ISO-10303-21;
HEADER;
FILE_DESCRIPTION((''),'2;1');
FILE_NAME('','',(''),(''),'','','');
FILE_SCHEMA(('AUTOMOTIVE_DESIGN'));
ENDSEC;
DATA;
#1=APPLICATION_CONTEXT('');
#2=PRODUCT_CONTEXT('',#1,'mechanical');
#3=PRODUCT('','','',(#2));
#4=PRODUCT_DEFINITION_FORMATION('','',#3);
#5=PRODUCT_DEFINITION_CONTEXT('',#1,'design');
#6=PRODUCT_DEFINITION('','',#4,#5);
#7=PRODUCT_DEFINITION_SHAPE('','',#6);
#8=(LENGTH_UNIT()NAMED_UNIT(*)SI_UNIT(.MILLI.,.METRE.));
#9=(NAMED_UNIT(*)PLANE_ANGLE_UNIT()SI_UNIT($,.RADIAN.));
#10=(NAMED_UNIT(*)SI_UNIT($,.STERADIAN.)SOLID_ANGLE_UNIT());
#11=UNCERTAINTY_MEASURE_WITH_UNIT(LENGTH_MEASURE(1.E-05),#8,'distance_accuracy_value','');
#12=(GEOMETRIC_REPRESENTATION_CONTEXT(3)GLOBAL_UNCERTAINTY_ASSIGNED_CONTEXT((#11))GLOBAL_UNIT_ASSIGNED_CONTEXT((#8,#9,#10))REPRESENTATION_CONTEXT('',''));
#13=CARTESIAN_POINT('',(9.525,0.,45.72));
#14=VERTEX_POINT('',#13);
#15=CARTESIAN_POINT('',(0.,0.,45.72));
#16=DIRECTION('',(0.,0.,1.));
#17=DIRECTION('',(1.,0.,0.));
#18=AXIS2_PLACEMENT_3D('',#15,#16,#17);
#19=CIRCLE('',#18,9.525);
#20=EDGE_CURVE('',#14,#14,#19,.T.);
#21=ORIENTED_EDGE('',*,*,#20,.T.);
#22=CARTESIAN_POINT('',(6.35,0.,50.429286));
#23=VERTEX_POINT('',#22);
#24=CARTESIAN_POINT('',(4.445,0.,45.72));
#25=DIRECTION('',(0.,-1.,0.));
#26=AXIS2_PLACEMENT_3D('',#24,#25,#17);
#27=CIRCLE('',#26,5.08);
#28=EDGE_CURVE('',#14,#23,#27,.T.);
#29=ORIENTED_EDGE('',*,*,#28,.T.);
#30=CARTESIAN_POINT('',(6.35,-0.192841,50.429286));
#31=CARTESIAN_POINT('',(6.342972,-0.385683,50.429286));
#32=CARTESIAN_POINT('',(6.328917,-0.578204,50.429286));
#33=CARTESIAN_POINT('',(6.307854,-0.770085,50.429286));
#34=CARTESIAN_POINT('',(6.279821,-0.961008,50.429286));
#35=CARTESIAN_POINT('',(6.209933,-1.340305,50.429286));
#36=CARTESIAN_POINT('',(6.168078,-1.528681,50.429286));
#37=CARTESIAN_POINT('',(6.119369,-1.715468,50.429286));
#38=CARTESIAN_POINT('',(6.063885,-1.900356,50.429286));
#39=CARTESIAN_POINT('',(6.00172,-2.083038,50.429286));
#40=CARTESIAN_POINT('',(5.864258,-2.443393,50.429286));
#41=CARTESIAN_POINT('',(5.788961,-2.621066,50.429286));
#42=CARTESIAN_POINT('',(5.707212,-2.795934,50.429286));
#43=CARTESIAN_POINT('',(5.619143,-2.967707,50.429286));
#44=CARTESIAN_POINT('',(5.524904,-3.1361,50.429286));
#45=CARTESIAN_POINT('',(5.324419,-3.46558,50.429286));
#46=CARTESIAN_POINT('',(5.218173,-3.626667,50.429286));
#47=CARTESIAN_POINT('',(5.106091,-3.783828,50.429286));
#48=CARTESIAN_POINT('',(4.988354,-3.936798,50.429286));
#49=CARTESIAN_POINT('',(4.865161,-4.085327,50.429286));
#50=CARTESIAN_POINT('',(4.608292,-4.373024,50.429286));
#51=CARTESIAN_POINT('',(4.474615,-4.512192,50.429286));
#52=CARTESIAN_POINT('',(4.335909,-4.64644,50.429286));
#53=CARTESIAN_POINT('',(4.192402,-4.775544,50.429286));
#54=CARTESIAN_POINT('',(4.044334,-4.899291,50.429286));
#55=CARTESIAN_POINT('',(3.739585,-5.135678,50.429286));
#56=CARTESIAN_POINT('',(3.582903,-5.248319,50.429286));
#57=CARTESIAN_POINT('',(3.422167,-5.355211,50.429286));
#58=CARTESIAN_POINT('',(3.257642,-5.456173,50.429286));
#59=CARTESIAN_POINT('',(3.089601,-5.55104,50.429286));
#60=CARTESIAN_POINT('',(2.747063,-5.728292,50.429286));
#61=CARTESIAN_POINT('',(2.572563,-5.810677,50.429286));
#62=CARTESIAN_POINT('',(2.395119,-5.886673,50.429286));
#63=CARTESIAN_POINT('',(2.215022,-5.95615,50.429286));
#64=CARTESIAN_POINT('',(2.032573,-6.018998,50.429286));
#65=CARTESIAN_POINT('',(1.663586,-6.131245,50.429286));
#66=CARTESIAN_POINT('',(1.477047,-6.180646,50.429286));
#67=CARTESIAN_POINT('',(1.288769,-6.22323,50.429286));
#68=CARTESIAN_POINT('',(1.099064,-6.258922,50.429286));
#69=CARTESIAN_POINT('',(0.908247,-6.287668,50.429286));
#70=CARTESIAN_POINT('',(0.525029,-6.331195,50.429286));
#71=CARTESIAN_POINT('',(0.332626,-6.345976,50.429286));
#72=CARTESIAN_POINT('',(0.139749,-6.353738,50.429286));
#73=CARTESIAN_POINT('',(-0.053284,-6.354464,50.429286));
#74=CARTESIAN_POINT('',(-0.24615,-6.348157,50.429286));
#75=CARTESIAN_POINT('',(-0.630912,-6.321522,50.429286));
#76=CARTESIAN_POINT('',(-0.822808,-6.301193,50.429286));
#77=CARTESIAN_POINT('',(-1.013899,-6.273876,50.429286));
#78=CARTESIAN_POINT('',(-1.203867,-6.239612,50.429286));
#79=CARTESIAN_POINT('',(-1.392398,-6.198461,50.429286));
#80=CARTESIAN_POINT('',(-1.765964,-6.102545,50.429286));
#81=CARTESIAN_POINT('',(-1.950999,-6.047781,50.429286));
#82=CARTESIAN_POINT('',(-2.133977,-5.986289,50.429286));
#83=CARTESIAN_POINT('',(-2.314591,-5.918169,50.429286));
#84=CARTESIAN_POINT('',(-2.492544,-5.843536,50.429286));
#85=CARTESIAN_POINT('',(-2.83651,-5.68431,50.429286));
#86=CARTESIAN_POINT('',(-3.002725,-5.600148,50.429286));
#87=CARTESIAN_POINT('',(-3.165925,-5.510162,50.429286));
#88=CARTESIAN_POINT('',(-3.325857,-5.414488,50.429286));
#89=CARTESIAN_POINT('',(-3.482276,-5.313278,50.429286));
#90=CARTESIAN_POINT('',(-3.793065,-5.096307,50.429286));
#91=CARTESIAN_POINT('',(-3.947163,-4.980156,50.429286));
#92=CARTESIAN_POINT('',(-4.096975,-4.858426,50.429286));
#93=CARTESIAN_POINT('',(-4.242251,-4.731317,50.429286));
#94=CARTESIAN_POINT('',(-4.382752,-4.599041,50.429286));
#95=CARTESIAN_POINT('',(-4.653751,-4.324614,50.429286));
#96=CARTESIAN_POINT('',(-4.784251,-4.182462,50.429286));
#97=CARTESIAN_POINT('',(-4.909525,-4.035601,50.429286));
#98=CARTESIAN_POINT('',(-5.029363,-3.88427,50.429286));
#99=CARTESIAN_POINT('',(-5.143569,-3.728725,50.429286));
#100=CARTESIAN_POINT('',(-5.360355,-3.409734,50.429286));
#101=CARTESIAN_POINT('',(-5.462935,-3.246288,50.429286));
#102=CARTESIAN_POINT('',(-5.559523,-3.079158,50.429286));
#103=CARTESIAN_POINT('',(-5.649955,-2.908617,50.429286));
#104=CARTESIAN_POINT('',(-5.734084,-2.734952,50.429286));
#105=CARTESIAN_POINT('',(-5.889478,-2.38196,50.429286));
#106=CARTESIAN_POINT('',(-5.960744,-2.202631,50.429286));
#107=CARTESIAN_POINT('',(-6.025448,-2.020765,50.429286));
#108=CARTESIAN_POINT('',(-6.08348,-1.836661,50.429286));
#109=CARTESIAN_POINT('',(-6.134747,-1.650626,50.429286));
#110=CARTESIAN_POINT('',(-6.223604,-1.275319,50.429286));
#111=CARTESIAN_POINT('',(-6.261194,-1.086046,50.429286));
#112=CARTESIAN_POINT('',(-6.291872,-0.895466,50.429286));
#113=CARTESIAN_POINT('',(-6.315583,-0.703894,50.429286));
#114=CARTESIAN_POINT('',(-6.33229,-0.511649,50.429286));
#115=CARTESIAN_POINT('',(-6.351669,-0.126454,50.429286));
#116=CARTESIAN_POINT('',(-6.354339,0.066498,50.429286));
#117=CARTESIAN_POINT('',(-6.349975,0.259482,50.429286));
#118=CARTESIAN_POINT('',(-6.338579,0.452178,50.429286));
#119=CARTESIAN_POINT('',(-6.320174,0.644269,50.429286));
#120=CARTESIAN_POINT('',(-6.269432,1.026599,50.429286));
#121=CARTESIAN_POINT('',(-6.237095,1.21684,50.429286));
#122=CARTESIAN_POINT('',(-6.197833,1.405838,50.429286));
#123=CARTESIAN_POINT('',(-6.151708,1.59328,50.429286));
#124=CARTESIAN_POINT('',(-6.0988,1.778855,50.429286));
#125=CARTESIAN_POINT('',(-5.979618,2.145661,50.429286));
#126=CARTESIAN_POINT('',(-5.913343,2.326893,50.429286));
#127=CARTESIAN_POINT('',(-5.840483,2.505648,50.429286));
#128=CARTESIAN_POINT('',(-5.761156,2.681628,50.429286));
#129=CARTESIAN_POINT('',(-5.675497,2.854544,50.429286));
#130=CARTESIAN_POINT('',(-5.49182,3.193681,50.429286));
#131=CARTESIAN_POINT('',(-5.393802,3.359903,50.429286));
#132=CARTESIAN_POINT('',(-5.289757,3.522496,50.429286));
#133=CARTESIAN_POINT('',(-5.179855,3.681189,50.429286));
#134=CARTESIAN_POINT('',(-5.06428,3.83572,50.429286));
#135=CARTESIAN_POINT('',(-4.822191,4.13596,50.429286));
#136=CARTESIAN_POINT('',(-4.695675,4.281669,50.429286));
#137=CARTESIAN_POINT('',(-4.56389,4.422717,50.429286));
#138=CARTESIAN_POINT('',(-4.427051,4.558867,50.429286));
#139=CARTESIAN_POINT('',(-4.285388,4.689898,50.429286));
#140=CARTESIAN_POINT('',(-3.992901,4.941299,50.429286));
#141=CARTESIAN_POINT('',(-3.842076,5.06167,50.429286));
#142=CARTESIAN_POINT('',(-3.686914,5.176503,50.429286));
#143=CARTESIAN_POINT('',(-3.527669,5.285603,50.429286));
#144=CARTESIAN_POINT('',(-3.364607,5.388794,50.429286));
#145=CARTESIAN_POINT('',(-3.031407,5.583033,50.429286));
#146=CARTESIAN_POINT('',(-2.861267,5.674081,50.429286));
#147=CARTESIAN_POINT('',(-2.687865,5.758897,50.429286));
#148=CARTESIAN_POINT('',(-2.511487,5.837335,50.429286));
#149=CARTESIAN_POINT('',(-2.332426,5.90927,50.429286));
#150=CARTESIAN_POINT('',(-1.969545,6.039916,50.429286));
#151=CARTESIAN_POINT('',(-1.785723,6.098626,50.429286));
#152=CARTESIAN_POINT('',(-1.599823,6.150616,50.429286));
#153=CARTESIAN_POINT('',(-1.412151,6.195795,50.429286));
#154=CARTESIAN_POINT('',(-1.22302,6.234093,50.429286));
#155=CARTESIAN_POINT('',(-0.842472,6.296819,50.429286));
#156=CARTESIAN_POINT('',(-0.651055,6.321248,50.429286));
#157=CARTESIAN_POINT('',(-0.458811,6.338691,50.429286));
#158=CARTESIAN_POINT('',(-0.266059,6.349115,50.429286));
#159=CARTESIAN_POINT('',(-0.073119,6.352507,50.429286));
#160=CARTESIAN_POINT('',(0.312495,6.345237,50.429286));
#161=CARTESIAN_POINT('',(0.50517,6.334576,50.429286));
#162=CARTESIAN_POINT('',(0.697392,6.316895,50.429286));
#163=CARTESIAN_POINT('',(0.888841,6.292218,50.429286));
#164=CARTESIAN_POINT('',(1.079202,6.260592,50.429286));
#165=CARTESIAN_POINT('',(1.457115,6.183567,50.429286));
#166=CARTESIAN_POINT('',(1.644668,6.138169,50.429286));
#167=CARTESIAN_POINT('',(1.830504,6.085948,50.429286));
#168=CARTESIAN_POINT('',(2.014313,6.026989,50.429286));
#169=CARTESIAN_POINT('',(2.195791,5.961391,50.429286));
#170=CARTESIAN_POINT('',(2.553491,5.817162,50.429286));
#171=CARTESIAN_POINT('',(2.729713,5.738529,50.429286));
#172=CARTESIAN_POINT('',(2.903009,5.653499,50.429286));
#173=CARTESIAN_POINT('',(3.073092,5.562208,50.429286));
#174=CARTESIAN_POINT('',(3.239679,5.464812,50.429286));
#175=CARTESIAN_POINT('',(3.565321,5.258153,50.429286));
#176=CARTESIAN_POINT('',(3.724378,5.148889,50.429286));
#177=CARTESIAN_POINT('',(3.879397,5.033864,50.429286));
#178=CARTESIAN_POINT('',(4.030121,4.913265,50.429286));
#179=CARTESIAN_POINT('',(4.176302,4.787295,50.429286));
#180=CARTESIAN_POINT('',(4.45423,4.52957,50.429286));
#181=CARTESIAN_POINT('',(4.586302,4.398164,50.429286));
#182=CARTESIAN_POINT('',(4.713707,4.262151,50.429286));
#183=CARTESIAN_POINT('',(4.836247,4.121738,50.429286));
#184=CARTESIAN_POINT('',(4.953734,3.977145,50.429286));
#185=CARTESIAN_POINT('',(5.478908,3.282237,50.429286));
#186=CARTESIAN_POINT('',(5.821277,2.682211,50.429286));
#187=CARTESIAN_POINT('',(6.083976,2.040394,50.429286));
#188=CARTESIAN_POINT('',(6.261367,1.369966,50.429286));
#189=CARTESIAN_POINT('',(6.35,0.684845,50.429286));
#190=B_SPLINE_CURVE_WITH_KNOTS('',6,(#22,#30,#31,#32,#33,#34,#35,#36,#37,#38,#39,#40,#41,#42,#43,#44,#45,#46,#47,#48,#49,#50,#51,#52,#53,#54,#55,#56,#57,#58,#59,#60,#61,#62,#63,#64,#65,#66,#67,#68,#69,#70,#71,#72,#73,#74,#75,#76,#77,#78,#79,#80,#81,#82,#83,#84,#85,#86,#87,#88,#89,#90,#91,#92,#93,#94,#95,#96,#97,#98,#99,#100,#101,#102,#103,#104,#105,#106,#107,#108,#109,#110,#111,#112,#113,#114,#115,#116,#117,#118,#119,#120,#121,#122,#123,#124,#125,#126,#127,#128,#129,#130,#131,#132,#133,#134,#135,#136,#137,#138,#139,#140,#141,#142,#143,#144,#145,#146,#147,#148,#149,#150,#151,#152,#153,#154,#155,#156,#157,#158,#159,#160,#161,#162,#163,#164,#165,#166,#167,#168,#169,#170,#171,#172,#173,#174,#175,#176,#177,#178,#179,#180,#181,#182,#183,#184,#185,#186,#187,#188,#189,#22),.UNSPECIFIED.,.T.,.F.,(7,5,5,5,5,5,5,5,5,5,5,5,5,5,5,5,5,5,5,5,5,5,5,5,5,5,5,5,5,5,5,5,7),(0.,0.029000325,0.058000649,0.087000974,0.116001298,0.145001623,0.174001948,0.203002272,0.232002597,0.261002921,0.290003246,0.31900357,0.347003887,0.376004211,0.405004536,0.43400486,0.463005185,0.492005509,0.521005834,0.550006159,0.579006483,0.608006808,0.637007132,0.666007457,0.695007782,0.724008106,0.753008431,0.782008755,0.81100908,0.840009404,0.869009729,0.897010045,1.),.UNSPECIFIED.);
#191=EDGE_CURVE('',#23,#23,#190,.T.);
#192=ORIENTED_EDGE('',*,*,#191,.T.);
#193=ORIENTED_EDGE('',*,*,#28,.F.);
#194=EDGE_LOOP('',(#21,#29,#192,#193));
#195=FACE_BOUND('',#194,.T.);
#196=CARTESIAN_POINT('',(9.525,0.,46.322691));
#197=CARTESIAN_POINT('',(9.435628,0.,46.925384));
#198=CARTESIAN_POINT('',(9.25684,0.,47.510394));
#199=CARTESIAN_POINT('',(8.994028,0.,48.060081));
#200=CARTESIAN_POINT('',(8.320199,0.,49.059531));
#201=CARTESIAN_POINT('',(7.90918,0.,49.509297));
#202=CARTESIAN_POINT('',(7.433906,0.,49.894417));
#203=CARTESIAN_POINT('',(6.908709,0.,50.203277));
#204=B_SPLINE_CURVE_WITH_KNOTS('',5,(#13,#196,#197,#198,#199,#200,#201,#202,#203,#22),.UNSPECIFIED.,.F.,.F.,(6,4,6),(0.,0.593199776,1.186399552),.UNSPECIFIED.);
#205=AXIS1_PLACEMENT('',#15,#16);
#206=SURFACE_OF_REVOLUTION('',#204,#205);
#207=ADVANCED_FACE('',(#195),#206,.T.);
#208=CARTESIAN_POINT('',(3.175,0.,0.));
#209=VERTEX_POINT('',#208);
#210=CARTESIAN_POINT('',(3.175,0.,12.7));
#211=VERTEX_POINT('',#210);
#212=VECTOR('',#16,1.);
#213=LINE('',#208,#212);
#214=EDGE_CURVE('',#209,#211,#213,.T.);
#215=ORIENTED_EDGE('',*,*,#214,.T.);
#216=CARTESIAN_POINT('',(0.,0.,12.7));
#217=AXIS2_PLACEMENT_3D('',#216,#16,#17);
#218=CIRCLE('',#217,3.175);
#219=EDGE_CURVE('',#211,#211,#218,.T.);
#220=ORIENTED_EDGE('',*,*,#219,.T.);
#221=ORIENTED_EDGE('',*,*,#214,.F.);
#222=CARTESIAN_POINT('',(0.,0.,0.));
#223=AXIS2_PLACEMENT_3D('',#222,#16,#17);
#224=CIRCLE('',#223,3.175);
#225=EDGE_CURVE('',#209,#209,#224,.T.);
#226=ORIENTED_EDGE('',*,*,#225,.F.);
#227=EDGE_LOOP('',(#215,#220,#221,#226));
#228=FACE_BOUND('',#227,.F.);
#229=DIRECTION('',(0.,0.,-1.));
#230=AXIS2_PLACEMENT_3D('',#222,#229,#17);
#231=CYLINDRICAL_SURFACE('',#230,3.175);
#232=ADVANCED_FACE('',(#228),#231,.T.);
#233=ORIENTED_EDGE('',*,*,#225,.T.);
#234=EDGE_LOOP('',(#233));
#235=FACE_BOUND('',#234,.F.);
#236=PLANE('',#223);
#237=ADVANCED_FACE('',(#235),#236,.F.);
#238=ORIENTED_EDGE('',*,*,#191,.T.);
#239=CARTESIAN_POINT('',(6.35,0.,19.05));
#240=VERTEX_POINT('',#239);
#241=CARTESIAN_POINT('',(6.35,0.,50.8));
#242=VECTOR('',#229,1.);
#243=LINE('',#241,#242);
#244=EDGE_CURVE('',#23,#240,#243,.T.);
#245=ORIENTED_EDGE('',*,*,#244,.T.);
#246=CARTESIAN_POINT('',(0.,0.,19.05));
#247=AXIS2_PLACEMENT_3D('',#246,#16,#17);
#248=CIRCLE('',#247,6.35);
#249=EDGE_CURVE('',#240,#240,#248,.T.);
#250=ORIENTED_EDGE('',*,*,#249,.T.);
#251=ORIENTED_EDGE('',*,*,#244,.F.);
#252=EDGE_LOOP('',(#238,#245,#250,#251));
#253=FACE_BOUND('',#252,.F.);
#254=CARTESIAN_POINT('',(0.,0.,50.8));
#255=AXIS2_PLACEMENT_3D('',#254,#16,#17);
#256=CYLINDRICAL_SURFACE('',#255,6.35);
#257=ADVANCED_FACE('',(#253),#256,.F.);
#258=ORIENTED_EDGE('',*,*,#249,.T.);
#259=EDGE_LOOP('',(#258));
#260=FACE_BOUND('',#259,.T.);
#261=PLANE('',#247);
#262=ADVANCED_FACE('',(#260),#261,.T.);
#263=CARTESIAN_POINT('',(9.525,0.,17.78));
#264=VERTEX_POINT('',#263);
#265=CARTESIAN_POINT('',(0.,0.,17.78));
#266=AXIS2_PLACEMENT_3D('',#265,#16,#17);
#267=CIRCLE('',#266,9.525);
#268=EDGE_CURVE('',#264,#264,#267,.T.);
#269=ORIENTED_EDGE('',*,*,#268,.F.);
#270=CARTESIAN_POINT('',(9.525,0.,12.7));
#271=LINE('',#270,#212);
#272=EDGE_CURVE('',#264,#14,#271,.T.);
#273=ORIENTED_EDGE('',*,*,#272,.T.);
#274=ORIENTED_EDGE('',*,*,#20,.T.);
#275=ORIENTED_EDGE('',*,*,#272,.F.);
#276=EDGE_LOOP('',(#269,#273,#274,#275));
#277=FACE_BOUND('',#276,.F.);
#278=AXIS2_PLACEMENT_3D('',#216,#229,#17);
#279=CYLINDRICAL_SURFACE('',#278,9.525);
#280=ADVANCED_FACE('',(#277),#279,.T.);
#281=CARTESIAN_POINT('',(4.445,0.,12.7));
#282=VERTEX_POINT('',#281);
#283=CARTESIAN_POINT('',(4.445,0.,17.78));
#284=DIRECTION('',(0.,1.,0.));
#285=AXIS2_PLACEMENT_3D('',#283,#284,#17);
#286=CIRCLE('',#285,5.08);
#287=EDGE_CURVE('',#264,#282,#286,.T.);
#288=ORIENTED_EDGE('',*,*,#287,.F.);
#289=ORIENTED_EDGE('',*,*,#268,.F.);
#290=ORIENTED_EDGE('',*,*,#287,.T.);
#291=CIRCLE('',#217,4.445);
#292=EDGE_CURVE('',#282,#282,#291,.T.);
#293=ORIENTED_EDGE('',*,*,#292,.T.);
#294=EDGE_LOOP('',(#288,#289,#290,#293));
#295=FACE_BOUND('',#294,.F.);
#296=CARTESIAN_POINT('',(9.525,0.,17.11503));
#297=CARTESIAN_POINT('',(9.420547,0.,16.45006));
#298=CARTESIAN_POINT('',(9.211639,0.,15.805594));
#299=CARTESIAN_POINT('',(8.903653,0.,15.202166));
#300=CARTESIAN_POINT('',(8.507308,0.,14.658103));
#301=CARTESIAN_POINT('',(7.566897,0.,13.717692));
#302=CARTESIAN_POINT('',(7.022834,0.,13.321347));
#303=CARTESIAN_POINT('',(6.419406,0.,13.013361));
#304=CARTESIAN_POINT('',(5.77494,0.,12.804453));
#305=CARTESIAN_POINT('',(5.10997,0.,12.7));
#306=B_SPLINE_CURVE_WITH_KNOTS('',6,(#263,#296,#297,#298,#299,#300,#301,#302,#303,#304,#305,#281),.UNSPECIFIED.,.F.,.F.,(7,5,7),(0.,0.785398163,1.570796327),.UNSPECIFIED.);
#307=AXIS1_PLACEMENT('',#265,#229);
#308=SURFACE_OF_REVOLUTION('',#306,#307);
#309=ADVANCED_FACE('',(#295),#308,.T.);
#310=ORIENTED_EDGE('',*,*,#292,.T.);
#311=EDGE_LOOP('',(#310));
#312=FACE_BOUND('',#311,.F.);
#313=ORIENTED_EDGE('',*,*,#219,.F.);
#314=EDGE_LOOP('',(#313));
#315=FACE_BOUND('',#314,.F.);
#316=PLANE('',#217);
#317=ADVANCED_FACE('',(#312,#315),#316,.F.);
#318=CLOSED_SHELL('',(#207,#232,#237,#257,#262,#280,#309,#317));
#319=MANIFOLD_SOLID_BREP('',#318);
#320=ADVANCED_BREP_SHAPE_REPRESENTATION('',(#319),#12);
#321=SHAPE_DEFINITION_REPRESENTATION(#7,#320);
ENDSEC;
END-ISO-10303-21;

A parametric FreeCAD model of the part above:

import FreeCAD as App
import Part
import Sketcher
Q = App.Units.Quantity


def edges_at(feature, points):
    """Names of the edges that pass closest to the given points."""
    edges = feature.Shape.Edges
    near = lambda p: min(range(len(edges)), key=lambda i: edges[i].distToShape(Part.Vertex(*p))[0])
    return sorted({f"Edge{near(p) + 1}" for p in points})

doc = App.newDocument("Part")
body = doc.addObject("PartDesign::Body", "Body")

# Sketch on XY plane
sketch1 = doc.addObject("Sketcher::SketchObject", "Sketch")
body.addObject(sketch1)
sketch1.AttachmentSupport = (doc.XY_Plane, [""])
sketch1.MapMode = "FlatFace"
sketch1.addGeometry(Part.Circle(App.Vector(0, 0, 0), App.Vector(0, 0, 1), 3.2), False)
sketch1.addConstraint([
    Sketcher.Constraint("Coincident", 0, 3, -1, 1),
    Sketcher.Constraint("Diameter", 0, Q("0.25 in")),
])
pad1 = doc.addObject("PartDesign::Pad", "Pad")
body.addObject(pad1)
pad1.Profile = sketch1
pad1.Length = Q("0.5 in")

# Sketch on XY plane
sketch2 = doc.addObject("Sketcher::SketchObject", "Sketch001")
body.addObject(sketch2)
sketch2.AttachmentSupport = (doc.XY_Plane, [""])
sketch2.MapMode = "FlatFace"
sketch2.AttachmentOffset = App.Placement(App.Vector(0, 0, 0.5 * 25.4), App.Rotation())
sketch2.addGeometry(Part.Circle(App.Vector(0, 0, 0), App.Vector(0, 0, 1), 10), False)
sketch2.addConstraint([
    Sketcher.Constraint("Coincident", 0, 3, -1, 1),
    Sketcher.Constraint("Diameter", 0, Q("0.75 in")),
])
pad2 = doc.addObject("PartDesign::Pad", "Pad001")
body.addObject(pad2)
pad2.Profile = sketch2
pad2.Length = Q("1.5 in")
doc.recompute()

fillet = doc.addObject("PartDesign::Fillet", "Fillet")
body.addObject(fillet)
fillet.Base = (pad2, edges_at(pad2, [(-9.525, 0, 50.8), (-9.525, 0, 12.7)]))
fillet.Radius = Q("0.2 in")

# Sketch on XY plane
sketch3 = doc.addObject("Sketcher::SketchObject", "Sketch002")
body.addObject(sketch3)
sketch3.AttachmentSupport = (doc.XY_Plane, [""])
sketch3.MapMode = "FlatFace"
sketch3.AttachmentOffset = App.Placement(App.Vector(0, 0, 2 * 25.4), App.Rotation())
sketch3.addGeometry(Part.Circle(App.Vector(0, 0, 0), App.Vector(0, 0, 1), 6), False)
sketch3.addConstraint([
    Sketcher.Constraint("Coincident", 0, 3, -1, 1),
    Sketcher.Constraint("Diameter", 0, Q("0.5 in")),
])
pocket1 = doc.addObject("PartDesign::Pocket", "Pocket")
body.addObject(pocket1)
pocket1.Profile = sketch3
pocket1.Length = Q("1.25 in")

doc.recompute()
